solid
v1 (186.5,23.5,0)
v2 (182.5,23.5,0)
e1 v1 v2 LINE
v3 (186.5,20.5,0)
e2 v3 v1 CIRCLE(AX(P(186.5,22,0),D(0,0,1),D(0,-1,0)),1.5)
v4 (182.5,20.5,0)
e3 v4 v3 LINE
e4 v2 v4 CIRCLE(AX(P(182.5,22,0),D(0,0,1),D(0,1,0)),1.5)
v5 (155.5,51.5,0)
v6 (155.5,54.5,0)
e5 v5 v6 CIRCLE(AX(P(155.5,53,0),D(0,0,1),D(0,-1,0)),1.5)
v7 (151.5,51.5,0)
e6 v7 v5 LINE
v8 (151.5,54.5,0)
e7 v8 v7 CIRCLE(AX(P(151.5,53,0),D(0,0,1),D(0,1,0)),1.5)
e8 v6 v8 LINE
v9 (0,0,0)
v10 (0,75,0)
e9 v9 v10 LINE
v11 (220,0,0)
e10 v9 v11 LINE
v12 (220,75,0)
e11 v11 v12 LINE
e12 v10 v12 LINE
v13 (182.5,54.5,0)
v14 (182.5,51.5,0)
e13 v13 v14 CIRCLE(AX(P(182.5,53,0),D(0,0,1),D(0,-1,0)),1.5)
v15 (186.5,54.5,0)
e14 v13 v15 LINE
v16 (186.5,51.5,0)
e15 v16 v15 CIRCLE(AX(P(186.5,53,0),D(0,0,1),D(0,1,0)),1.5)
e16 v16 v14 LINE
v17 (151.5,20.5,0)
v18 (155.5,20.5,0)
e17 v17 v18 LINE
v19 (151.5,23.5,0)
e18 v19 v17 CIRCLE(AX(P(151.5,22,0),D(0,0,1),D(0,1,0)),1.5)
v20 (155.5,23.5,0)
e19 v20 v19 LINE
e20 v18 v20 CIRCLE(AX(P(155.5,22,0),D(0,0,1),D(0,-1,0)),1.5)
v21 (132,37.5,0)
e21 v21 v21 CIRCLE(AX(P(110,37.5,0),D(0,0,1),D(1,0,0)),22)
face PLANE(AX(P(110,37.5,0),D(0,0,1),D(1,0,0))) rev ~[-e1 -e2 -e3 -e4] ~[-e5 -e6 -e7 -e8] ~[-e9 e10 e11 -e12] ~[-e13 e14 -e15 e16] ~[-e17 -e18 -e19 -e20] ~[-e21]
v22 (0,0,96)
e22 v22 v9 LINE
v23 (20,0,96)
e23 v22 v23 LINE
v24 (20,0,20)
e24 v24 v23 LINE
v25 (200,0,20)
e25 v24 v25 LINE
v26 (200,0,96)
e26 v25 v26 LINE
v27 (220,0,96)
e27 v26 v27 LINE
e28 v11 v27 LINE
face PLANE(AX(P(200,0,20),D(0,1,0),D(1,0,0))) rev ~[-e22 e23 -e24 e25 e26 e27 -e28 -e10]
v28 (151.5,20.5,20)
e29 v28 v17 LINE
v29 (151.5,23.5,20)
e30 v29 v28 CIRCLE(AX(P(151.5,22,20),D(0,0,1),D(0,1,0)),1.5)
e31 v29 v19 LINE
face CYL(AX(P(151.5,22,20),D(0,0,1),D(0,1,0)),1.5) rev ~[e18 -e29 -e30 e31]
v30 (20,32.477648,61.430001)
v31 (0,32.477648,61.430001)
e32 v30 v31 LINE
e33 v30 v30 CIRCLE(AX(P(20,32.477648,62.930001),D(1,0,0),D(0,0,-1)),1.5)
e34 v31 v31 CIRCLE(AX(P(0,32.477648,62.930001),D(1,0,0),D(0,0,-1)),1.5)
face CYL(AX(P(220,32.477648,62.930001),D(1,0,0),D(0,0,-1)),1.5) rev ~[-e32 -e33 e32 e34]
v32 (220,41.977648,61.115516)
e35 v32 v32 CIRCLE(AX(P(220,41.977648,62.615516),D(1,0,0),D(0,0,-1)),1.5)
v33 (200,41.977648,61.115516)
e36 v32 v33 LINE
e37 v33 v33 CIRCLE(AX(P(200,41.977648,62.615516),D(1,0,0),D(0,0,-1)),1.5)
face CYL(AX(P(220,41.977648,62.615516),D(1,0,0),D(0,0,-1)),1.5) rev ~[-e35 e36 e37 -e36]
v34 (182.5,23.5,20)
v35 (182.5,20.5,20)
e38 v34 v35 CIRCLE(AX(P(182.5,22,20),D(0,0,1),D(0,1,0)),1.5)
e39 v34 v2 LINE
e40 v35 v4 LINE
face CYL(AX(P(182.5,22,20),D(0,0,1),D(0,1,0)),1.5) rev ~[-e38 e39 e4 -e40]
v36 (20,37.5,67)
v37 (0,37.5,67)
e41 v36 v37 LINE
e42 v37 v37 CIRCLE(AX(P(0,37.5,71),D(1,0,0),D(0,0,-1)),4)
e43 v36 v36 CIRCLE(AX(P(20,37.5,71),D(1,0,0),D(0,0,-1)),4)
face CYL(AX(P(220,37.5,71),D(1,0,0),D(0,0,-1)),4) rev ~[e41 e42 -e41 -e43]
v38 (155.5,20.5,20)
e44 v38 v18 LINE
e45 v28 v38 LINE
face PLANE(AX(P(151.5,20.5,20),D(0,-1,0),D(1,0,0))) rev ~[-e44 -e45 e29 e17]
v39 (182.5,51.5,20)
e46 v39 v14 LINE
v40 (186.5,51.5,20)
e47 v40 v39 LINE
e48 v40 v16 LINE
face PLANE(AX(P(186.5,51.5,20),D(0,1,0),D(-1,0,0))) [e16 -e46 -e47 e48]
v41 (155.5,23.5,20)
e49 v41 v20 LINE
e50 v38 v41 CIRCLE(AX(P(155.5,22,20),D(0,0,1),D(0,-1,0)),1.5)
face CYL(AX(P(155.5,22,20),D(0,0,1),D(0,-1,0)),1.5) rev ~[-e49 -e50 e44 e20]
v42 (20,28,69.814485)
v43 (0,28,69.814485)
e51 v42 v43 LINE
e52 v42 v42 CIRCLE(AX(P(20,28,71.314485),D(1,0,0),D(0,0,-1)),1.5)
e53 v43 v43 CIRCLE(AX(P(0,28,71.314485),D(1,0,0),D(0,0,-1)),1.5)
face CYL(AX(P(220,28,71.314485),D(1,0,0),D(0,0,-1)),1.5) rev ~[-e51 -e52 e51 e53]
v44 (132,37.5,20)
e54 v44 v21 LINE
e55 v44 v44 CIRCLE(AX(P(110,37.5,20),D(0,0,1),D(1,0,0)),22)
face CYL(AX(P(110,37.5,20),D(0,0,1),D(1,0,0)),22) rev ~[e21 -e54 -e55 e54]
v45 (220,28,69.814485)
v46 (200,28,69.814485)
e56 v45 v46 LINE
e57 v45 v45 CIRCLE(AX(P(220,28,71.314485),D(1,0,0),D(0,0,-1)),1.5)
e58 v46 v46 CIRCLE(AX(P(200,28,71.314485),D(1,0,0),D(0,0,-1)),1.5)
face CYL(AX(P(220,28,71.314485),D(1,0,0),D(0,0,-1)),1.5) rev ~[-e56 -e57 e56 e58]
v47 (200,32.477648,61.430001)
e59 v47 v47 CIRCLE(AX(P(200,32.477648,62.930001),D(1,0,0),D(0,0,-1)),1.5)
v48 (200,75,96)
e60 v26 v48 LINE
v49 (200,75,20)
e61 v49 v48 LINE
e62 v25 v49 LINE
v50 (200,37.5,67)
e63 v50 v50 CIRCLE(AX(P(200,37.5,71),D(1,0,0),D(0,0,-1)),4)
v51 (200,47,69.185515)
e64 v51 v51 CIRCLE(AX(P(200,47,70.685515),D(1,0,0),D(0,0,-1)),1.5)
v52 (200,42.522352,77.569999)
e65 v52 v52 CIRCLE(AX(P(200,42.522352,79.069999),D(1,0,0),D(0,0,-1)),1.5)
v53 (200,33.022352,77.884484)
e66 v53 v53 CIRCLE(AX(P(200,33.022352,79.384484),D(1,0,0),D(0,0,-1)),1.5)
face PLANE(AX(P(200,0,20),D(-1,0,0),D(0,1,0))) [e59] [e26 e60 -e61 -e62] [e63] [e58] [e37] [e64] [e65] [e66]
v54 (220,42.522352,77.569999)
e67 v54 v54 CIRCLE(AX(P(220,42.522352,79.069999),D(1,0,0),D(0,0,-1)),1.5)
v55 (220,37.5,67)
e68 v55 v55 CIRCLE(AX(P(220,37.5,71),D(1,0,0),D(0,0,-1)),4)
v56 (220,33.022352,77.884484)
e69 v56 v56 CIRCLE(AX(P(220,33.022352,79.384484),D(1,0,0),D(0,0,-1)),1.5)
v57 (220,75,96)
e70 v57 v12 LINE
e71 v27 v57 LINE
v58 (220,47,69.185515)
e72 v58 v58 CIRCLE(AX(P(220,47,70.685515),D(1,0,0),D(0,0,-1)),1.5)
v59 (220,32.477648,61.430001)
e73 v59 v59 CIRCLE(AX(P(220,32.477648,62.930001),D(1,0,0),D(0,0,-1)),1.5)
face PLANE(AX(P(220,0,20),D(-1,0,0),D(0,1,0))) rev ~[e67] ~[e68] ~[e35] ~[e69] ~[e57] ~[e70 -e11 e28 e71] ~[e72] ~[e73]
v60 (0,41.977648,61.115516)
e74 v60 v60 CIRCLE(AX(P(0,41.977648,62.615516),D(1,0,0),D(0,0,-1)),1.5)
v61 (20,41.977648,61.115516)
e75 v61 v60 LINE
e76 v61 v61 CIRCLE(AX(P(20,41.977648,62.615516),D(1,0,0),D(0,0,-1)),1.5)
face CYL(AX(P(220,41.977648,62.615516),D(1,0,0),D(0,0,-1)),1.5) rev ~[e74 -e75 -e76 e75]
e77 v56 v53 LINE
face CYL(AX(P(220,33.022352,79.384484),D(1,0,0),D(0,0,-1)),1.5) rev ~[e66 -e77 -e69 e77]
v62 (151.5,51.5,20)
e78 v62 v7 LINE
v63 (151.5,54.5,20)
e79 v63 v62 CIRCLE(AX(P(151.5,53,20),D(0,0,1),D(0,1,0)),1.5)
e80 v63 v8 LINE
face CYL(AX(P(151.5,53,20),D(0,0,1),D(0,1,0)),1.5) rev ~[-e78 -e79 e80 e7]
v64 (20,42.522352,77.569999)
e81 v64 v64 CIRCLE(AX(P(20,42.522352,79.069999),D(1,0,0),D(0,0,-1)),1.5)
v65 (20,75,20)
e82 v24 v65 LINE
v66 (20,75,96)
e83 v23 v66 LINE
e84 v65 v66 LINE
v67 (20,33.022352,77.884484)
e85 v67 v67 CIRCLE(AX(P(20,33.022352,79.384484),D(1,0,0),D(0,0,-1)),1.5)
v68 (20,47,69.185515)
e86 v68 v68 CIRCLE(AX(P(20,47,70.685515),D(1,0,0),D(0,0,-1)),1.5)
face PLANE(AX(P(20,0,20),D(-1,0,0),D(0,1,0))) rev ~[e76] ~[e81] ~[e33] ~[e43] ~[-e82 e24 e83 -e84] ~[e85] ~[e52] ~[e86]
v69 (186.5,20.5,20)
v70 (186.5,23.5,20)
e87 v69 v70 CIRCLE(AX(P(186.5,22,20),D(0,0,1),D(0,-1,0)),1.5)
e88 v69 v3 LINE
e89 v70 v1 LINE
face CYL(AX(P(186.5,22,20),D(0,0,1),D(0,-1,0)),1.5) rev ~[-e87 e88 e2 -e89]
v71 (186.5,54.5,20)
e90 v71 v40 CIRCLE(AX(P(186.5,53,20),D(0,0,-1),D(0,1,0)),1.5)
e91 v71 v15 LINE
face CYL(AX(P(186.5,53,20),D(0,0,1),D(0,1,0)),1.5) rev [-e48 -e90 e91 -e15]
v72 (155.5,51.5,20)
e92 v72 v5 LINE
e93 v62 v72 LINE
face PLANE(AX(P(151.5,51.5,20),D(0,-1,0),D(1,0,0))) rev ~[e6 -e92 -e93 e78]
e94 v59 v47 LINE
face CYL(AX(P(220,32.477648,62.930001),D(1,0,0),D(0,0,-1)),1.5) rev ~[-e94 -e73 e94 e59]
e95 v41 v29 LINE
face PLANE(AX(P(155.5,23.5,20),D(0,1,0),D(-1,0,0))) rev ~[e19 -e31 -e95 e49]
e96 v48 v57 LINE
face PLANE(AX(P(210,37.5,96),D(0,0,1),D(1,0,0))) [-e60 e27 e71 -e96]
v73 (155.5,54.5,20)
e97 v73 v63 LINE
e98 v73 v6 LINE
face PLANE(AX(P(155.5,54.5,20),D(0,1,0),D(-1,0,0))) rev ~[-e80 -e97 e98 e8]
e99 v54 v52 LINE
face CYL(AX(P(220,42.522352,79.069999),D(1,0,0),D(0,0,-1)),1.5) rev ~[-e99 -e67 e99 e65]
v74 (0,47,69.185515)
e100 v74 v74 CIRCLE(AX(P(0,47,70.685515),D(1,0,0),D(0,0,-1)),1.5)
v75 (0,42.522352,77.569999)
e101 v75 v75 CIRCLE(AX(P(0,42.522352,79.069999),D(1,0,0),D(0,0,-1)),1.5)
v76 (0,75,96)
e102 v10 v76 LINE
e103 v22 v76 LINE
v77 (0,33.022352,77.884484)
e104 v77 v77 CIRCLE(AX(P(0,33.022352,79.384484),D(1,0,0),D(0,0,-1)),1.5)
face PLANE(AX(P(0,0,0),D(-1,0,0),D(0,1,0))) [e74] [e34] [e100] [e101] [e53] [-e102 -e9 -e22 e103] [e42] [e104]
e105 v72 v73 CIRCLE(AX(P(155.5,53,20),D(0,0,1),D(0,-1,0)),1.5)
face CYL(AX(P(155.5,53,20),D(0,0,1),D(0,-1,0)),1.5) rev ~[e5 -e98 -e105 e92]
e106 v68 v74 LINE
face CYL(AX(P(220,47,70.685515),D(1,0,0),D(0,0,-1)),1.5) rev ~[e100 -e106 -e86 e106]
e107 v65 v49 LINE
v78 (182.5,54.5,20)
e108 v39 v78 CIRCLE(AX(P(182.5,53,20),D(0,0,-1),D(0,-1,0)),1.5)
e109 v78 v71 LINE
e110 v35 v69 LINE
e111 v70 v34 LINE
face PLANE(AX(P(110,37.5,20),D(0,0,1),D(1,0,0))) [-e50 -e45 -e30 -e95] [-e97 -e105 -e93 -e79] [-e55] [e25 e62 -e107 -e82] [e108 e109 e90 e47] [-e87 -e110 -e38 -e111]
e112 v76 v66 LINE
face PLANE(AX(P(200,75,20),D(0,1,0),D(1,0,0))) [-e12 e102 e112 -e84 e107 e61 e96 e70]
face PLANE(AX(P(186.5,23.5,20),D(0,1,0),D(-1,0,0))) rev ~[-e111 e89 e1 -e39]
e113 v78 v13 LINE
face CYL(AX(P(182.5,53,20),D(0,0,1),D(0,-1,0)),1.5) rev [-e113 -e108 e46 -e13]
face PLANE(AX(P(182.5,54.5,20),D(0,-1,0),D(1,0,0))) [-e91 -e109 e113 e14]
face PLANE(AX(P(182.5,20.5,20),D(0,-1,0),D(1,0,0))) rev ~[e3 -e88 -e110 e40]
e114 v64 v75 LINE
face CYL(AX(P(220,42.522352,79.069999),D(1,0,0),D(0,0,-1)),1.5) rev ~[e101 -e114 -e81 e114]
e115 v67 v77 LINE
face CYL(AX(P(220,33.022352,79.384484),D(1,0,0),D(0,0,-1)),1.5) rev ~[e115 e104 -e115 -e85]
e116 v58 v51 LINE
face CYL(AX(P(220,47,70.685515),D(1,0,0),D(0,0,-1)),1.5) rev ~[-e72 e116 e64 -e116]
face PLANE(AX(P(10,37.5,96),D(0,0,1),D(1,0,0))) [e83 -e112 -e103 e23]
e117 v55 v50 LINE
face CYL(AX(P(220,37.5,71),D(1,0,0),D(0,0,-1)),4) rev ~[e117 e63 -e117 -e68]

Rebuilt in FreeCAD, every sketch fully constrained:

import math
import FreeCAD as App
import Part
import Sketcher

doc = App.newDocument("Part")
params = doc.addObject("Spreadsheet::Sheet", "Params")
for row, (alias, value) in enumerate([
    ("sketch1_width", "220 mm"),
    ("sketch1_height", "75 mm"),
    ("pad1_length", "20 mm"),
    ("sketch2_width", "20 mm"),
    ("sketch2_height", "75 mm"),
    ("pad2_length", "76 mm"),
    ("sketch3_diameter", "8 mm"),
    ("sketch4_diameter", "44 mm"),
    ("pocket2_length", "76 mm"),
    ("sketch5_diameter", "3 mm"),
    ("sketch6_radius", "1.5 mm"),
    ("sketch6_width", "4 mm"),
], start=1):
    params.set(f"A{row}", alias)
    params.set(f"B{row}", "=" + value)
    params.setAlias(f"B{row}", alias)

body = doc.addObject("PartDesign::Body", "Body")

sketch1 = doc.addObject("Sketcher::SketchObject", "Sketch")
body.addObject(sketch1)
sketch1.AttachmentSupport = (doc.XY_Plane, [""])
sketch1.MapMode = "FlatFace"
sketch1.addGeometry(Part.LineSegment(App.Vector(0, 75, 0), App.Vector(0, 0, 0)), False)
sketch1.addGeometry(Part.LineSegment(App.Vector(0, 0, 0), App.Vector(220, 0, 0)), False)
sketch1.addGeometry(Part.LineSegment(App.Vector(220, 0, 0), App.Vector(220, 75, 0)), False)
sketch1.addGeometry(Part.LineSegment(App.Vector(220, 75, 0), App.Vector(0, 75, 0)), False)
sketch1.addConstraint(Sketcher.Constraint("Coincident", 0, 2, 1, 1))
sketch1.addConstraint(Sketcher.Constraint("Coincident", 1, 2, 2, 1))
sketch1.addConstraint(Sketcher.Constraint("Coincident", 2, 2, 3, 1))
sketch1.addConstraint(Sketcher.Constraint("Coincident", 3, 2, 0, 1))
sketch1.addConstraint(Sketcher.Constraint("Vertical", 0))
sketch1.addConstraint(Sketcher.Constraint("Horizontal", 1))
sketch1.addConstraint(Sketcher.Constraint("Vertical", 2))
sketch1.addConstraint(Sketcher.Constraint("Horizontal", 3))
sketch1.addConstraint(Sketcher.Constraint("Coincident", 0, 2, -1, 1))
sketch1.addConstraint(Sketcher.Constraint("DistanceX", 1, 1, 1, 2, 220.0))
sketch1.addConstraint(Sketcher.Constraint("DistanceY", 0, 2, 0, 1, 75.0))
sketch1.setExpression("Constraints[9]", "Params.sketch1_width")
sketch1.setExpression("Constraints[10]", "Params.sketch1_height")
pad1 = doc.addObject("PartDesign::Pad", "Pad")
body.addObject(pad1)
pad1.Profile = sketch1
pad1.setExpression("Length", "Params.pad1_length")

sketch2 = doc.addObject("Sketcher::SketchObject", "Sketch001")
body.addObject(sketch2)
sketch2.AttachmentSupport = (doc.XY_Plane, [""])
sketch2.MapMode = "FlatFace"
sketch2.AttachmentOffset = App.Placement(App.Vector(0, 0, 20), App.Rotation())
sketch2.addGeometry(Part.LineSegment(App.Vector(200, 75, 0), App.Vector(200, 0, 0)), False)
sketch2.addGeometry(Part.LineSegment(App.Vector(200, 0, 0), App.Vector(220, 0, 0)), False)
sketch2.addGeometry(Part.LineSegment(App.Vector(220, 0, 0), App.Vector(220, 75, 0)), False)
sketch2.addGeometry(Part.LineSegment(App.Vector(220, 75, 0), App.Vector(200, 75, 0)), False)
sketch2.addGeometry(Part.LineSegment(App.Vector(0, 75, 0), App.Vector(0, 0, 0)), False)
sketch2.addGeometry(Part.LineSegment(App.Vector(0, 0, 0), App.Vector(20, 0, 0)), False)
sketch2.addGeometry(Part.LineSegment(App.Vector(20, 0, 0), App.Vector(20, 75, 0)), False)
sketch2.addGeometry(Part.LineSegment(App.Vector(20, 75, 0), App.Vector(0, 75, 0)), False)
sketch2.addConstraint(Sketcher.Constraint("Coincident", 0, 2, 1, 1))
sketch2.addConstraint(Sketcher.Constraint("Coincident", 1, 2, 2, 1))
sketch2.addConstraint(Sketcher.Constraint("Coincident", 2, 2, 3, 1))
sketch2.addConstraint(Sketcher.Constraint("Coincident", 3, 2, 0, 1))
sketch2.addConstraint(Sketcher.Constraint("Coincident", 4, 2, 5, 1))
sketch2.addConstraint(Sketcher.Constraint("Coincident", 5, 2, 6, 1))
sketch2.addConstraint(Sketcher.Constraint("Coincident", 6, 2, 7, 1))
sketch2.addConstraint(Sketcher.Constraint("Coincident", 7, 2, 4, 1))
sketch2.addConstraint(Sketcher.Constraint("Vertical", 0))
sketch2.addConstraint(Sketcher.Constraint("Horizontal", 1))
sketch2.addConstraint(Sketcher.Constraint("Vertical", 2))
sketch2.addConstraint(Sketcher.Constraint("Horizontal", 3))
sketch2.addConstraint(Sketcher.Constraint("Vertical", 4))
sketch2.addConstraint(Sketcher.Constraint("Horizontal", 5))
sketch2.addConstraint(Sketcher.Constraint("Vertical", 6))
sketch2.addConstraint(Sketcher.Constraint("Horizontal", 7))
sketch2.addConstraint(Sketcher.Constraint("Coincident", 4, 2, -1, 1))
sketch2.addConstraint(Sketcher.Constraint("PointOnObject", 0, 2, -1))
sketch2.addConstraint(Sketcher.Constraint("Horizontal", 3, 2, 6, 2))
sketch2.addConstraint(Sketcher.Constraint("Equal", 3, 5))
sketch2.addConstraint(Sketcher.Constraint("DistanceX", 1, 1, 1, 2, 20.0))
sketch2.addConstraint(Sketcher.Constraint("DistanceY", 0, 2, 0, 1, 75.0))
sketch2.addConstraint(Sketcher.Constraint("DistanceX", -1, 1, 0, 2, 200.0))
sketch2.setExpression("Constraints[20]", "Params.sketch2_width")
sketch2.setExpression("Constraints[21]", "Params.sketch2_height")
pad2 = doc.addObject("PartDesign::Pad", "Pad001")
body.addObject(pad2)
pad2.Profile = sketch2
pad2.setExpression("Length", "Params.pad2_length")

sketch3 = doc.addObject("Sketcher::SketchObject", "Sketch002")
body.addObject(sketch3)
sketch3.AttachmentSupport = (doc.YZ_Plane, [""])
sketch3.MapMode = "FlatFace"
sketch3.AttachmentOffset = App.Placement(App.Vector(0, 0, 220), App.Rotation())
sketch3.addGeometry(Part.Circle(App.Vector(37.5, 71, 0), App.Vector(0, 0, 1), 4), False)
sketch3.addConstraint(Sketcher.Constraint("Diameter", 0, 8.0))
sketch3.addConstraint(Sketcher.Constraint("DistanceY", -1, 1, 0, 3, 71.0))
sketch3.addConstraint(Sketcher.Constraint("DistanceX", -1, 1, 0, 3, 37.5))
sketch3.setExpression("Constraints[0]", "Params.sketch3_diameter")
pocket1 = doc.addObject("PartDesign::Pocket", "Pocket")
body.addObject(pocket1)
pocket1.Profile = sketch3
pocket1.Type = "ThroughAll"

sketch4 = doc.addObject("Sketcher::SketchObject", "Sketch003")
body.addObject(sketch4)
sketch4.AttachmentSupport = (doc.XY_Plane, [""])
sketch4.MapMode = "FlatFace"
sketch4.AttachmentOffset = App.Placement(App.Vector(0, 0, 20), App.Rotation())
sketch4.addGeometry(Part.Circle(App.Vector(110, 38, 0), App.Vector(0, 0, 1), 22), False)
sketch4.addConstraint(Sketcher.Constraint("Diameter", 0, 44.0))
sketch4.addConstraint(Sketcher.Constraint("DistanceX", -1, 1, 0, 3, 110.0))
sketch4.addConstraint(Sketcher.Constraint("DistanceY", -1, 1, 0, 3, 37.5))
sketch4.setExpression("Constraints[0]", "Params.sketch4_diameter")
pocket2 = doc.addObject("PartDesign::Pocket", "Pocket001")
body.addObject(pocket2)
pocket2.Profile = sketch4
pocket2.setExpression("Length", "Params.pocket2_length")

sketch5 = doc.addObject("Sketcher::SketchObject", "Sketch004")
body.addObject(sketch5)
sketch5.AttachmentSupport = (doc.YZ_Plane, [""])
sketch5.MapMode = "FlatFace"
sketch5.AttachmentOffset = App.Placement(App.Vector(0, 0, 220), App.Rotation())
sketch5.addGeometry(Part.Circle(App.Vector(47, 70.7, 0), App.Vector(0, 0, 1), 1.5), False)
sketch5.addGeometry(Part.Circle(App.Vector(42, 62.6, 0), App.Vector(0, 0, 1), 1.5), False)
sketch5.addGeometry(Part.Circle(App.Vector(32.5, 62.9, 0), App.Vector(0, 0, 1), 1.5), False)
sketch5.addGeometry(Part.Circle(App.Vector(28, 71.3, 0), App.Vector(0, 0, 1), 1.5), False)
sketch5.addGeometry(Part.Circle(App.Vector(33, 79.4, 0), App.Vector(0, 0, 1), 1.5), False)
sketch5.addGeometry(Part.Circle(App.Vector(42.5, 79.1, 0), App.Vector(0, 0, 1), 1.5), False)
sketch5.addConstraint(Sketcher.Constraint("Equal", 0, 1))
sketch5.addConstraint(Sketcher.Constraint("Equal", 1, 2))
sketch5.addConstraint(Sketcher.Constraint("Equal", 2, 3))
sketch5.addConstraint(Sketcher.Constraint("Equal", 3, 4))
sketch5.addConstraint(Sketcher.Constraint("Equal", 4, 5))
sketch5.addConstraint(Sketcher.Constraint("Diameter", 0, 3.0))
sketch5.addConstraint(Sketcher.Constraint("DistanceX", -1, 1, 0, 3, 47.0))
sketch5.addConstraint(Sketcher.Constraint("DistanceX", -1, 1, 3, 3, 28.0))
sketch5.addConstraint(Sketcher.Constraint("DistanceX", 2, 3, 1, 3, 9.5))
sketch5.addConstraint(Sketcher.Constraint("DistanceX", 4, 3, 5, 3, 9.5))
sketch5.addConstraint(Sketcher.Constraint("DistanceY", -1, 1, 2, 3, 62.930001))
sketch5.addConstraint(Sketcher.Constraint("DistanceY", -1, 1, 5, 3, 79.069999))
sketch5.addConstraint(Sketcher.Constraint("DistanceY", 1, 3, 0, 3, 8.069999))
sketch5.addConstraint(Sketcher.Constraint("DistanceY", 3, 3, 4, 3, 8.069999))
sketch5.addConstraint(Sketcher.Constraint("DistanceY", 1, 3, 3, 3, 8.698969))
sketch5.addConstraint(Sketcher.Constraint("DistanceY", -1, 1, 0, 3, 70.685515))
sketch5.addConstraint(Sketcher.Constraint("DistanceX", -1, 1, 1, 3, 41.977648))
sketch5.addConstraint(Sketcher.Constraint("DistanceX", -1, 1, 4, 3, 33.022352))
sketch5.setExpression("Constraints[5]", "Params.sketch5_diameter")
pocket3 = doc.addObject("PartDesign::Pocket", "Pocket002")
body.addObject(pocket3)
pocket3.Profile = sketch5
pocket3.Type = "ThroughAll"

sketch6 = doc.addObject("Sketcher::SketchObject", "Sketch005")
body.addObject(sketch6)
sketch6.AttachmentSupport = (doc.XY_Plane, [""])
sketch6.MapMode = "FlatFace"
sketch6.AttachmentOffset = App.Placement(App.Vector(0, 0, 20), App.Rotation())
sketch6.addGeometry(Part.LineSegment(App.Vector(186.5, 54.5, 0), App.Vector(182.5, 54.5, 0)), False)
sketch6.addGeometry(Part.ArcOfCircle(Part.Circle(App.Vector(182.5, 53, 0), App.Vector(0, 0, 1), 1.5), math.radians(90), math.radians(270)), False)
sketch6.addGeometry(Part.LineSegment(App.Vector(182.5, 51.5, 0), App.Vector(186.5, 51.5, 0)), False)
sketch6.addGeometry(Part.ArcOfCircle(Part.Circle(App.Vector(186.5, 53, 0), App.Vector(0, 0, 1), 1.5), math.radians(-90), math.radians(90)), False)
sketch6.addGeometry(Part.LineSegment(App.Vector(151.5, 51.5, 0), App.Vector(155.5, 51.5, 0)), False)
sketch6.addGeometry(Part.ArcOfCircle(Part.Circle(App.Vector(155.5, 53, 0), App.Vector(0, 0, 1), 1.5), math.radians(-90), math.radians(90)), False)
sketch6.addGeometry(Part.LineSegment(App.Vector(155.5, 54.5, 0), App.Vector(151.5, 54.5, 0)), False)
sketch6.addGeometry(Part.ArcOfCircle(Part.Circle(App.Vector(151.5, 53, 0), App.Vector(0, 0, 1), 1.5), math.radians(90), math.radians(270)), False)
sketch6.addGeometry(Part.LineSegment(App.Vector(151.5, 20.5, 0), App.Vector(155.5, 20.5, 0)), False)
sketch6.addGeometry(Part.ArcOfCircle(Part.Circle(App.Vector(155.5, 22, 0), App.Vector(0, 0, 1), 1.5), math.radians(-90), math.radians(90)), False)
sketch6.addGeometry(Part.LineSegment(App.Vector(155.5, 23.5, 0), App.Vector(151.5, 23.5, 0)), False)
sketch6.addGeometry(Part.ArcOfCircle(Part.Circle(App.Vector(151.5, 22, 0), App.Vector(0, 0, 1), 1.5), math.radians(90), math.radians(270)), False)
sketch6.addGeometry(Part.LineSegment(App.Vector(182.5, 20.5, 0), App.Vector(186.5, 20.5, 0)), False)
sketch6.addGeometry(Part.ArcOfCircle(Part.Circle(App.Vector(186.5, 22, 0), App.Vector(0, 0, 1), 1.5), math.radians(-90), math.radians(90)), False)
sketch6.addGeometry(Part.LineSegment(App.Vector(186.5, 23.5, 0), App.Vector(182.5, 23.5, 0)), False)
sketch6.addGeometry(Part.ArcOfCircle(Part.Circle(App.Vector(182.5, 22, 0), App.Vector(0, 0, 1), 1.5), math.radians(90), math.radians(270)), False)
sketch6.addConstraint(Sketcher.Constraint("Tangent", 0, 2, 1, 1))
sketch6.addConstraint(Sketcher.Constraint("Tangent", 1, 2, 2, 1))
sketch6.addConstraint(Sketcher.Constraint("Tangent", 2, 2, 3, 1))
sketch6.addConstraint(Sketcher.Constraint("Tangent", 3, 2, 0, 1))
sketch6.addConstraint(Sketcher.Constraint("Tangent", 4, 2, 5, 1))
sketch6.addConstraint(Sketcher.Constraint("Tangent", 5, 2, 6, 1))
sketch6.addConstraint(Sketcher.Constraint("Tangent", 6, 2, 7, 1))
sketch6.addConstraint(Sketcher.Constraint("Tangent", 7, 2, 4, 1))
sketch6.addConstraint(Sketcher.Constraint("Tangent", 8, 2, 9, 1))
sketch6.addConstraint(Sketcher.Constraint("Tangent", 9, 2, 10, 1))
sketch6.addConstraint(Sketcher.Constraint("Tangent", 10, 2, 11, 1))
sketch6.addConstraint(Sketcher.Constraint("Tangent", 11, 2, 8, 1))
sketch6.addConstraint(Sketcher.Constraint("Tangent", 12, 2, 13, 1))
sketch6.addConstraint(Sketcher.Constraint("Tangent", 13, 2, 14, 1))
sketch6.addConstraint(Sketcher.Constraint("Tangent", 14, 2, 15, 1))
sketch6.addConstraint(Sketcher.Constraint("Tangent", 15, 2, 12, 1))
sketch6.addConstraint(Sketcher.Constraint("Horizontal", 0))
sketch6.addConstraint(Sketcher.Constraint("Horizontal", 2))
sketch6.addConstraint(Sketcher.Constraint("Horizontal", 4))
sketch6.addConstraint(Sketcher.Constraint("Horizontal", 6))
sketch6.addConstraint(Sketcher.Constraint("Horizontal", 8))
sketch6.addConstraint(Sketcher.Constraint("Horizontal", 10))
sketch6.addConstraint(Sketcher.Constraint("Horizontal", 12))
sketch6.addConstraint(Sketcher.Constraint("Horizontal", 14))
sketch6.addConstraint(Sketcher.Constraint("Equal", 3, 5))
sketch6.addConstraint(Sketcher.Constraint("Equal", 7, 9))
sketch6.addConstraint(Sketcher.Constraint("Equal", 11, 13))
sketch6.addConstraint(Sketcher.Constraint("Horizontal", 3, 3, 5, 3))
sketch6.addConstraint(Sketcher.Constraint("Horizontal", 11, 3, 13, 3))
sketch6.addConstraint(Sketcher.Constraint("Vertical", 5, 3, 9, 3))
sketch6.addConstraint(Sketcher.Constraint("Vertical", 7, 3, 11, 3))
sketch6.addConstraint(Sketcher.Constraint("Vertical", 3, 3, 13, 3))
sketch6.addConstraint(Sketcher.Constraint("Vertical", 1, 3, 15, 3))
sketch6.addConstraint(Sketcher.Constraint("Equal", 2, 4))
sketch6.addConstraint(Sketcher.Constraint("Radius", 1, 1.5))
sketch6.addConstraint(Sketcher.Constraint("DistanceX", 0, 2, 0, 1, 4.0))
sketch6.addConstraint(Sketcher.Constraint("DistanceY", -1, 1, 1, 3, 53.0))
sketch6.addConstraint(Sketcher.Constraint("DistanceY", -1, 1, 9, 3, 22.0))
sketch6.addConstraint(Sketcher.Constraint("DistanceX", 5, 3, 1, 3, 27.0))
sketch6.addConstraint(Sketcher.Constraint("DistanceX", -1, 1, 1, 3, 182.5))
sketch6.setExpression("Constraints[34]", "Params.sketch6_radius")
sketch6.setExpression("Constraints[35]", "Params.sketch6_width")
pocket4 = doc.addObject("PartDesign::Pocket", "Pocket003")
body.addObject(pocket4)
pocket4.Profile = sketch6
pocket4.Type = "ThroughAll"

doc.recompute()
